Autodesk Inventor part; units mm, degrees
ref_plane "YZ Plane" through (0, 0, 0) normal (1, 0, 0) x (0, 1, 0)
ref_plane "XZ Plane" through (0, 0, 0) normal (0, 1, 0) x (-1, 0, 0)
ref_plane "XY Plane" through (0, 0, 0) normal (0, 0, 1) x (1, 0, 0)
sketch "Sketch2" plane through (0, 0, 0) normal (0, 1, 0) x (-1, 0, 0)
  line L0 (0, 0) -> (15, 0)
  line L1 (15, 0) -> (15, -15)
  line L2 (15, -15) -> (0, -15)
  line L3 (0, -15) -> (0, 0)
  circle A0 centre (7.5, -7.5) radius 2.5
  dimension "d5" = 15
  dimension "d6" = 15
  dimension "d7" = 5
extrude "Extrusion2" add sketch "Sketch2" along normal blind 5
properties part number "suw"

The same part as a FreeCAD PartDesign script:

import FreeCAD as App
import Part
import Sketcher

doc = App.newDocument("Part")
params = doc.addObject("Spreadsheet::Sheet", "Params")
for row, (alias, value) in enumerate([
    ("sketch1_diameter", "5 mm"),
    ("sketch1_width", "15 mm"),
    ("pad1_length", "5 mm"),
], start=1):
    params.set(f"A{row}", alias)
    params.set(f"B{row}", "=" + value)
    params.setAlias(f"B{row}", alias)

body = doc.addObject("PartDesign::Body", "Body")

# Sketch on XZ plane
sketch1 = body.newObject("Sketcher::SketchObject", "Sketch")
sketch1.AttachmentSupport = (doc.getObject("XZ_Plane"), [""])
sketch1.MapMode = "FlatFace"
sketch1.addGeometry([
    Part.LineSegment(App.Vector(-15, 0, 0), App.Vector(0, 0, 0)),  # 0
    Part.LineSegment(App.Vector(0, 0, 0), App.Vector(0, -15, 0)),  # 1
    Part.LineSegment(App.Vector(0, -15, 0), App.Vector(-15, -15, 0)),  # 2
    Part.LineSegment(App.Vector(-15, -15, 0), App.Vector(-15, 0, 0)),  # 3
    Part.Circle(App.Vector(-7.5, -7.5, 0), App.Vector(0, 0, 1), 2.5),  # 4
], False)
sketch1.addConstraint([
    Sketcher.Constraint("Coincident", 0, 2, 1, 1),
    Sketcher.Constraint("Coincident", 1, 2, 2, 1),
    Sketcher.Constraint("Coincident", 2, 2, 3, 1),
    Sketcher.Constraint("Coincident", 3, 2, 0, 1),
    Sketcher.Constraint("Horizontal", 0),
    Sketcher.Constraint("Vertical", 1),
    Sketcher.Constraint("Horizontal", 2),
    Sketcher.Constraint("Vertical", 3),
    Sketcher.Constraint("Coincident", 0, 2, -1, 1),
    Sketcher.Constraint("Equal", 2, 1),
    Sketcher.Constraint("Diameter", 4, 5.0),
    Sketcher.Constraint("DistanceX", 0, 1, 0, 2, 15.0),
    Sketcher.Constraint("DistanceX", 4, 3, -1, 1, 7.5),
    Sketcher.Constraint("DistanceY", 4, 3, -1, 1, 7.5),
])
sketch1.setExpression("Constraints[10]", "Params.sketch1_diameter")
sketch1.setExpression("Constraints[11]", "Params.sketch1_width")
pad1 = body.newObject("PartDesign::Pad", "Pad")
pad1.Profile = sketch1
pad1.setExpression("Length", "Params.pad1_length")
pad1.Reversed = True

doc.recompute()
